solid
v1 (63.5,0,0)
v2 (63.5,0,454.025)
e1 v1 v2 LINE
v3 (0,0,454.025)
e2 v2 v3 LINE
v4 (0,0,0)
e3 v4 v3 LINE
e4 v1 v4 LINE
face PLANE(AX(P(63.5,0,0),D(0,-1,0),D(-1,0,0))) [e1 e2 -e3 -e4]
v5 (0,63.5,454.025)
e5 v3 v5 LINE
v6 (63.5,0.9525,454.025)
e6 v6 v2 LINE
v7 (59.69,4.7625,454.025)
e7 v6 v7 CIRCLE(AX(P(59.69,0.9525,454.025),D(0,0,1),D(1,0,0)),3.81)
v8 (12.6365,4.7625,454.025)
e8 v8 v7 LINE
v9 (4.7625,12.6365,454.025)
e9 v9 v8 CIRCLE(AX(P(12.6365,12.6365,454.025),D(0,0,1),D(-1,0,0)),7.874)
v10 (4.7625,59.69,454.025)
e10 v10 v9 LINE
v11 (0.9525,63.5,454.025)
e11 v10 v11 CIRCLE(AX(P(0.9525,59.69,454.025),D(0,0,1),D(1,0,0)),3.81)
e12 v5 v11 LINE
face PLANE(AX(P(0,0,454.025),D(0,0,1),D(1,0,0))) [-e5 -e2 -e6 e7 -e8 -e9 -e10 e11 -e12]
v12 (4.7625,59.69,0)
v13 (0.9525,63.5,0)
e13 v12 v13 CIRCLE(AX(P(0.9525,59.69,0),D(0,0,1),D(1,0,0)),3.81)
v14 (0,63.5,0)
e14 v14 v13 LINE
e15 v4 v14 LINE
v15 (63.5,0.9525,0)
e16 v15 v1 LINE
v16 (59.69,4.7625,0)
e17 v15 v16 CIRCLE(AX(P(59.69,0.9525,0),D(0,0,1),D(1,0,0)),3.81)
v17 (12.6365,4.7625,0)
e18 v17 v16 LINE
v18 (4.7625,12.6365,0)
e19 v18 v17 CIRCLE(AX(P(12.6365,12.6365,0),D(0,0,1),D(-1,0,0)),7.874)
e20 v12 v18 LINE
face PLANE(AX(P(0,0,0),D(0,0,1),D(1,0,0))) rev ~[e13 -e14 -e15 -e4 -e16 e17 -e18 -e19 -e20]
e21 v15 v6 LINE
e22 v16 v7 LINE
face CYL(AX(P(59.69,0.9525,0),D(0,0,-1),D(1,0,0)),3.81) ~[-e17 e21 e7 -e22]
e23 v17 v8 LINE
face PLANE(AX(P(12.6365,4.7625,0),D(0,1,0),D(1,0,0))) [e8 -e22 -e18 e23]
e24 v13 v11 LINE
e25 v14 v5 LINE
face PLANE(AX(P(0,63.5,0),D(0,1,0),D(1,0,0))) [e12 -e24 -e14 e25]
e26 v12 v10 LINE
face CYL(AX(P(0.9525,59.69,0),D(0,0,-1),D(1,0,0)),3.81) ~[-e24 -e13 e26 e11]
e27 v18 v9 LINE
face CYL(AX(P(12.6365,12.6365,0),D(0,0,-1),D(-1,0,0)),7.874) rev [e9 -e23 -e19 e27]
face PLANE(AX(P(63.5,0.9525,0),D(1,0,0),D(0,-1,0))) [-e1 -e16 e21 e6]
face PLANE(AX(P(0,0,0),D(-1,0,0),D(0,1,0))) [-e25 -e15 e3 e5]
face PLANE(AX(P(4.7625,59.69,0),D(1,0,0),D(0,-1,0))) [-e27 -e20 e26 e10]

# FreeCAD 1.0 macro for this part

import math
import FreeCAD as App
import Part
import Sketcher
Q = App.Units.Quantity

doc = App.newDocument("Part")
body = doc.addObject("PartDesign::Body", "Body")

# Sketch on XY plane
sketch1 = doc.addObject("Sketcher::SketchObject", "Sketch")
body.addObject(sketch1)
sketch1.AttachmentSupport = (doc.XY_Plane, [""])
sketch1.MapMode = "FlatFace"
sketch1.addGeometry([
    Part.LineSegment(App.Vector(0, 0, 0), App.Vector(63.5, 0, 0)),  # 0
    Part.LineSegment(App.Vector(63.5, 0, 0), App.Vector(63.5, 1, 0)),  # 1
    Part.ArcOfCircle(Part.Circle(App.Vector(59.7, 1, 0), App.Vector(0, 0, 1), 3.8), math.radians(0), math.radians(90)),  # 2
    Part.LineSegment(App.Vector(59.7, 4.8, 0), App.Vector(12.6, 4.8, 0)),  # 3
    Part.ArcOfCircle(Part.Circle(App.Vector(12.6, 12.6, 0), App.Vector(0, 0, 1), 7.9), math.radians(180), math.radians(270)),  # 4
    Part.LineSegment(App.Vector(4.8, 12.6, 0), App.Vector(4.8, 59.7, 0)),  # 5
    Part.ArcOfCircle(Part.Circle(App.Vector(1, 59.7, 0), App.Vector(0, 0, 1), 3.8), math.radians(0), math.radians(90)),  # 6
    Part.LineSegment(App.Vector(1, 63.5, 0), App.Vector(0, 63.5, 0)),  # 7
    Part.LineSegment(App.Vector(0, 63.5, 0), App.Vector(0, 0, 0)),  # 8
], False)
sketch1.addConstraint([
    Sketcher.Constraint("Coincident", 0, 2, 1, 1),
    Sketcher.Constraint("Tangent", 1, 2, 2, 1),
    Sketcher.Constraint("Tangent", 2, 2, 3, 1),
    Sketcher.Constraint("Tangent", 3, 2, 4, 2),
    Sketcher.Constraint("Tangent", 4, 1, 5, 1),
    Sketcher.Constraint("Tangent", 5, 2, 6, 1),
    Sketcher.Constraint("Tangent", 6, 2, 7, 1),
    Sketcher.Constraint("Coincident", 7, 2, 8, 1),
    Sketcher.Constraint("Coincident", 8, 2, 0, 1),
    Sketcher.Constraint("Horizontal", 0),
    Sketcher.Constraint("Vertical", 1),
    Sketcher.Constraint("Horizontal", 3),
    Sketcher.Constraint("Vertical", 5),
    Sketcher.Constraint("Horizontal", 7),
    Sketcher.Constraint("Vertical", 8),
    Sketcher.Constraint("Coincident", 8, 2, -1, 1),
    Sketcher.Constraint("Equal", 2, 6),
    Sketcher.Constraint("Equal", 7, 1),
    Sketcher.Constraint("Equal", 3, 5),
    Sketcher.Constraint("Radius", 2, Q("0.15 in")),
    Sketcher.Constraint("Radius", 4, Q("0.31 in")),
    Sketcher.Constraint("DistanceX", 0, 1, 0, 2, Q("2.5 in")),
    Sketcher.Constraint("DistanceY", -1, 1, 2, 2, Q("0.1875 in")),
])
pad1 = doc.addObject("PartDesign::Pad", "Pad")
body.addObject(pad1)
pad1.Profile = sketch1
pad1.Length = Q("17.875 in")

doc.recompute()
